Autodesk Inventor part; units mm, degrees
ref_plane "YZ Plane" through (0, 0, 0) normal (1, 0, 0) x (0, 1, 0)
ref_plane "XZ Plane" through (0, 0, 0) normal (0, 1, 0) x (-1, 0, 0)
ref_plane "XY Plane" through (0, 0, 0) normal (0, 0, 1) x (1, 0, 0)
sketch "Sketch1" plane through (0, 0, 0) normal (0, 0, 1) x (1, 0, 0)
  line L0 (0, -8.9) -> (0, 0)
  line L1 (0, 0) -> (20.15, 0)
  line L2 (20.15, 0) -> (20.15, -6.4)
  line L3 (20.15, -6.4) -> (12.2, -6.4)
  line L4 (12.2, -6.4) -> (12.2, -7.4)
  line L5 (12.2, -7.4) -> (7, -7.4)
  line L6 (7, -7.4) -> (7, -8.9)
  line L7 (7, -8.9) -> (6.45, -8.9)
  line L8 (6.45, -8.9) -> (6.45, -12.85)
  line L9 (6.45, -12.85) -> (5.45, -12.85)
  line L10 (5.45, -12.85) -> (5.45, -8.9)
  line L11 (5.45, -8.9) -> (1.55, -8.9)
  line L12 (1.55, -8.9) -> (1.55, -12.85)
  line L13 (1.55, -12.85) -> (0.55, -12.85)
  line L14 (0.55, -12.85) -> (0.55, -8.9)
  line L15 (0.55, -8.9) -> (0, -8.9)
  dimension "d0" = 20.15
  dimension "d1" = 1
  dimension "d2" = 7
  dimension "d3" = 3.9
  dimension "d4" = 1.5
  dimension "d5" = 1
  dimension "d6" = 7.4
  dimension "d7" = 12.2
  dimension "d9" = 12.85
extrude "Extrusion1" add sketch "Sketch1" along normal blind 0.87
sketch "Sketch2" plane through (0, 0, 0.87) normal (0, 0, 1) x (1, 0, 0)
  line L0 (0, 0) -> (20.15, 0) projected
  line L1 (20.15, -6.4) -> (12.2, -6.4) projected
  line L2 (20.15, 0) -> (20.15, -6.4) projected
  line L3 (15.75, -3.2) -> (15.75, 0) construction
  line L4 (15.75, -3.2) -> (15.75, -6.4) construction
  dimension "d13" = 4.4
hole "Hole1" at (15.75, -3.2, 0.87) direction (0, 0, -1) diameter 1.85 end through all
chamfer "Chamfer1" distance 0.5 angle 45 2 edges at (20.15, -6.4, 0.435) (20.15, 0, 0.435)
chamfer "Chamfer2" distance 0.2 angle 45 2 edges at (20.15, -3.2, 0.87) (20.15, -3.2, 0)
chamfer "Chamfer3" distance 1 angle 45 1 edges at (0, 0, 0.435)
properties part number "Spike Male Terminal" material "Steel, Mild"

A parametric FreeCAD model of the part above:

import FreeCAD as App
import Part
import Sketcher
Q = App.Units.Quantity


def edges_at(feature, points):
    """Names of the edges that pass closest to the given points."""
    edges = feature.Shape.Edges
    near = lambda p: min(range(len(edges)), key=lambda i: edges[i].distToShape(Part.Vertex(*p))[0])
    return sorted({f"Edge{near(p) + 1}" for p in points})

doc = App.newDocument("Part")
body = doc.addObject("PartDesign::Body", "Body")

# Sketch on XY plane
sketch1 = body.newObject("Sketcher::SketchObject", "Sketch")
sketch1.AttachmentSupport = (doc.getObject("XY_Plane"), [""])
sketch1.MapMode = "FlatFace"
sketch1.addGeometry(Part.LineSegment(App.Vector(0, 0, 0), App.Vector(0, -8.9, 0)), False)
sketch1.addGeometry(Part.LineSegment(App.Vector(0, -8.9, 0), App.Vector(0.55, -8.9, 0)), False)
sketch1.addGeometry(Part.LineSegment(App.Vector(0.55, -8.9, 0), App.Vector(0.55, -12.85, 0)), False)
sketch1.addGeometry(Part.LineSegment(App.Vector(0.55, -12.85, 0), App.Vector(1.55, -12.85, 0)), False)
sketch1.addGeometry(Part.LineSegment(App.Vector(1.55, -12.85, 0), App.Vector(1.55, -8.9, 0)), False)
sketch1.addGeometry(Part.LineSegment(App.Vector(1.55, -8.9, 0), App.Vector(5.45, -8.9, 0)), False)
sketch1.addGeometry(Part.LineSegment(App.Vector(5.45, -8.9, 0), App.Vector(5.45, -12.85, 0)), False)
sketch1.addGeometry(Part.LineSegment(App.Vector(5.45, -12.85, 0), App.Vector(6.45, -12.85, 0)), False)
sketch1.addGeometry(Part.LineSegment(App.Vector(6.45, -12.85, 0), App.Vector(6.45, -8.9, 0)), False)
sketch1.addGeometry(Part.LineSegment(App.Vector(6.45, -8.9, 0), App.Vector(7, -8.9, 0)), False)
sketch1.addGeometry(Part.LineSegment(App.Vector(7, -8.9, 0), App.Vector(7, -7.4, 0)), False)
sketch1.addGeometry(Part.LineSegment(App.Vector(7, -7.4, 0), App.Vector(12.2, -7.4, 0)), False)
sketch1.addGeometry(Part.LineSegment(App.Vector(12.2, -7.4, 0), App.Vector(12.2, -6.4, 0)), False)
sketch1.addGeometry(Part.LineSegment(App.Vector(12.2, -6.4, 0), App.Vector(20.15, -6.4, 0)), False)
sketch1.addGeometry(Part.LineSegment(App.Vector(20.15, -6.4, 0), App.Vector(20.15, 0, 0)), False)
sketch1.addGeometry(Part.LineSegment(App.Vector(20.15, 0, 0), App.Vector(0, 0, 0)), False)
sketch1.addConstraint(Sketcher.Constraint("Coincident", 0, 2, 1, 1))
sketch1.addConstraint(Sketcher.Constraint("Coincident", 1, 2, 2, 1))
sketch1.addConstraint(Sketcher.Constraint("Coincident", 2, 2, 3, 1))
sketch1.addConstraint(Sketcher.Constraint("Coincident", 3, 2, 4, 1))
sketch1.addConstraint(Sketcher.Constraint("Coincident", 4, 2, 5, 1))
sketch1.addConstraint(Sketcher.Constraint("Coincident", 5, 2, 6, 1))
sketch1.addConstraint(Sketcher.Constraint("Coincident", 6, 2, 7, 1))
sketch1.addConstraint(Sketcher.Constraint("Coincident", 7, 2, 8, 1))
sketch1.addConstraint(Sketcher.Constraint("Coincident", 8, 2, 9, 1))
sketch1.addConstraint(Sketcher.Constraint("Coincident", 9, 2, 10, 1))
sketch1.addConstraint(Sketcher.Constraint("Coincident", 10, 2, 11, 1))
sketch1.addConstraint(Sketcher.Constraint("Coincident", 11, 2, 12, 1))
sketch1.addConstraint(Sketcher.Constraint("Coincident", 12, 2, 13, 1))
sketch1.addConstraint(Sketcher.Constraint("Coincident", 13, 2, 14, 1))
sketch1.addConstraint(Sketcher.Constraint("Coincident", 14, 2, 15, 1))
sketch1.addConstraint(Sketcher.Constraint("Coincident", 15, 2, 0, 1))
sketch1.addConstraint(Sketcher.Constraint("Vertical", 0))
sketch1.addConstraint(Sketcher.Constraint("Horizontal", 1))
sketch1.addConstraint(Sketcher.Constraint("Vertical", 2))
sketch1.addConstraint(Sketcher.Constraint("Horizontal", 3))
sketch1.addConstraint(Sketcher.Constraint("Vertical", 4))
sketch1.addConstraint(Sketcher.Constraint("Horizontal", 5))
sketch1.addConstraint(Sketcher.Constraint("Vertical", 6))
sketch1.addConstraint(Sketcher.Constraint("Horizontal", 7))
sketch1.addConstraint(Sketcher.Constraint("Vertical", 8))
sketch1.addConstraint(Sketcher.Constraint("Horizontal", 9))
sketch1.addConstraint(Sketcher.Constraint("Vertical", 10))
sketch1.addConstraint(Sketcher.Constraint("Horizontal", 11))
sketch1.addConstraint(Sketcher.Constraint("Vertical", 12))
sketch1.addConstraint(Sketcher.Constraint("Horizontal", 13))
sketch1.addConstraint(Sketcher.Constraint("Vertical", 14))
sketch1.addConstraint(Sketcher.Constraint("Horizontal", 15))
sketch1.addConstraint(Sketcher.Constraint("Coincident", 15, 2, -1, 1))
sketch1.addConstraint(Sketcher.Constraint("Horizontal", 1, 2, 4, 2))
sketch1.addConstraint(Sketcher.Constraint("Horizontal", 3, 2, 6, 2))
sketch1.addConstraint(Sketcher.Constraint("Horizontal", 5, 2, 8, 2))
sketch1.addConstraint(Sketcher.Constraint("Equal", 3, 7))
sketch1.addConstraint(Sketcher.Constraint("Equal", 1, 9))
sketch1.addConstraint(Sketcher.Constraint("Equal", 7, 12))
sketch1.addConstraint(Sketcher.Constraint("DistanceX", 3, 1, 3, 2, Q("1 mm")))
sketch1.addConstraint(Sketcher.Constraint("DistanceX", 5, 1, 5, 2, Q("3.9 mm")))
sketch1.addConstraint(Sketcher.Constraint("DistanceY", 10, 1, 10, 2, Q("1.5 mm")))
sketch1.addConstraint(Sketcher.Constraint("DistanceX", -1, 1, 9, 2, Q("7 mm")))
sketch1.addConstraint(Sketcher.Constraint("DistanceX", 15, 2, 15, 1, Q("20.15 mm")))
sketch1.addConstraint(Sketcher.Constraint("DistanceY", 10, 2, -1, 1, Q("7.4 mm")))
sketch1.addConstraint(Sketcher.Constraint("DistanceX", -1, 1, 11, 2, Q("12.2 mm")))
sketch1.addConstraint(Sketcher.Constraint("DistanceY", 2, 2, -1, 1, Q("12.85 mm")))
pad1 = body.newObject("PartDesign::Pad", "Pad")
pad1.Profile = sketch1
pad1.Length = 0.87

# Sketch on XY plane
sketch2 = body.newObject("Sketcher::SketchObject", "Sketch001")
sketch2.AttachmentSupport = (doc.getObject("XY_Plane"), [""])
sketch2.MapMode = "FlatFace"
sketch2.AttachmentOffset = App.Placement(App.Vector(0, 0, 0.87), App.Rotation())
sketch2.addGeometry(Part.Circle(App.Vector(15.75, -3.2, 0), App.Vector(0, 0, 1), 0.925), False)
sketch2.addConstraint(Sketcher.Constraint("Diameter", 0, Q("1.85 mm")))
sketch2.addConstraint(Sketcher.Constraint("DistanceY", 0, 3, -1, 1, Q("3.2 mm")))
sketch2.addConstraint(Sketcher.Constraint("DistanceX", -1, 1, 0, 3, Q("15.75 mm")))
doc.recompute()
hole = body.newObject("PartDesign::Hole", "Hole")
hole.Profile = sketch2
hole.ThreadType = "None"
hole.Diameter = 1.85
hole.DepthType = "ThroughAll"
doc.recompute()

chamfer = body.newObject("PartDesign::Chamfer", "Chamfer")
chamfer.Base = (hole, edges_at(hole, [(20.15, -6.4, 0.435), (20.15, 0, 0.435)]))
chamfer.Size = 0.5
doc.recompute()

chamfer2 = body.newObject("PartDesign::Chamfer", "Chamfer001")
chamfer2.Base = (chamfer, edges_at(chamfer, [(20.15, -3.2, 0.87), (20.15, -3.2, 0)]))
chamfer2.Size = 0.2
doc.recompute()

chamfer3 = body.newObject("PartDesign::Chamfer", "Chamfer002")
chamfer3.Base = (chamfer2, edges_at(chamfer2, [(0, 0, 0.435)]))
chamfer3.Size = 1

doc.recompute()
